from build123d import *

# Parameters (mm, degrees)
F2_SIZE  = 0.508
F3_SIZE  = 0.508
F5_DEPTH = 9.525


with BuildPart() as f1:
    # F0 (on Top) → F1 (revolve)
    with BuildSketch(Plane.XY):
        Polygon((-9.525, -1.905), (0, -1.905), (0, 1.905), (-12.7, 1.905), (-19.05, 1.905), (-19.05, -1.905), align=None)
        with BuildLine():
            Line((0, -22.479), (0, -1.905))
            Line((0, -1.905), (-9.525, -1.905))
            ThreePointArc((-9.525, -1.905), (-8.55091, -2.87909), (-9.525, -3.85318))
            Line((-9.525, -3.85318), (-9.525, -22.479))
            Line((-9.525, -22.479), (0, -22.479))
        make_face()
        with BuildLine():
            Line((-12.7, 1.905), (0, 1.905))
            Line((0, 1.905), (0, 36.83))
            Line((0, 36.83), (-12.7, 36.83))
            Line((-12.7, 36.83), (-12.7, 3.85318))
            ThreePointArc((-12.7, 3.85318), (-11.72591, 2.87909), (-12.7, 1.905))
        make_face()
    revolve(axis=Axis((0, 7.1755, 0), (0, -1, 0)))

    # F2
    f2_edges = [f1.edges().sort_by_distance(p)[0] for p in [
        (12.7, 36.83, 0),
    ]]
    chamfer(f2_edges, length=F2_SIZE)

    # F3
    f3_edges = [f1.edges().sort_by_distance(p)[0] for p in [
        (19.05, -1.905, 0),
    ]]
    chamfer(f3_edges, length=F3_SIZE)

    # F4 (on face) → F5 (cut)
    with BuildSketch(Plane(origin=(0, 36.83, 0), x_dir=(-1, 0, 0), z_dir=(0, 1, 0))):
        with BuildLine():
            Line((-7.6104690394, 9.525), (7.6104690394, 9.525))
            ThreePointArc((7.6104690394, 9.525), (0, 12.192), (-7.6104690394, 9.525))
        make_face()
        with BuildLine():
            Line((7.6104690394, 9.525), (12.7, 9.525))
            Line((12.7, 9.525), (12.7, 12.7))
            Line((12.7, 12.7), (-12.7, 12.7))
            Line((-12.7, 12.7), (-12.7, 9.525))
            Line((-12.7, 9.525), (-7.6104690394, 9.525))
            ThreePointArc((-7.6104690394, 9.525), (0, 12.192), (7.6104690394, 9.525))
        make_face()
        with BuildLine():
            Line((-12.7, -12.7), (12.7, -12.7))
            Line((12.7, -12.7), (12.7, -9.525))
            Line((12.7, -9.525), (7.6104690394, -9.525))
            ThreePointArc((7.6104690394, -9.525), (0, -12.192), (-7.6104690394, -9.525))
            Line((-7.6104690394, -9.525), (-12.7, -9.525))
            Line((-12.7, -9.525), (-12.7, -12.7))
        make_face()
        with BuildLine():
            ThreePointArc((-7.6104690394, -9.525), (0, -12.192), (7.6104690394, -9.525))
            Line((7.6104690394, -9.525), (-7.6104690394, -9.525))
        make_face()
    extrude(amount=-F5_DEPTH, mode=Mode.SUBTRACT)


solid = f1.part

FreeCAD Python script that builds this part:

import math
import FreeCAD as App
import Part
import Sketcher
Q = App.Units.Quantity


def edges_at(feature, points):
    """Names of the edges that pass closest to the given points."""
    edges = feature.Shape.Edges
    near = lambda p: min(range(len(edges)), key=lambda i: edges[i].distToShape(Part.Vertex(*p))[0])
    return sorted({f"Edge{near(p) + 1}" for p in points})


def add_polygon(sketch, points):
    """Adds a closed chain of lines whose ends are joined by coincident constraints."""
    first, n = sketch.GeometryCount, len(points)
    for a, b in zip(points, points[1:] + points[:1]):
        sketch.addGeometry(Part.LineSegment(App.Vector(*a, 0), App.Vector(*b, 0)), False)
    for i in range(n):
        sketch.addConstraint(Sketcher.Constraint("Coincident", first + i, 2, first + (i + 1) % n, 1))

doc = App.newDocument("Part")
body = doc.addObject("PartDesign::Body", "Body")

sketch1 = body.newObject("Sketcher::SketchObject", "Sketch")
sketch1.AttachmentSupport = (doc.getObject("XY_Plane"), [""])
sketch1.MapMode = "FlatFace"
sketch1.addGeometry([
    Part.LineSegment(App.Vector(-12.7, 1.9, 0), App.Vector(-19.1, 1.9, 0)),
    Part.LineSegment(App.Vector(-19.1, 1.9, 0), App.Vector(-19.1, -1.9, 0)),
    Part.LineSegment(App.Vector(-19.1, -1.9, 0), App.Vector(-9.5, -1.9, 0)),
    Part.ArcOfCircle(Part.Circle(App.Vector(-9.5, -2.9, 0), App.Vector(0, 0, 1), 1), math.radians(-90), math.radians(90)),
    Part.LineSegment(App.Vector(-9.5, -3.9, 0), App.Vector(-9.5, -22.5, 0)),
    Part.LineSegment(App.Vector(-9.5, -22.5, 0), App.Vector(0, -22.5, 0)),
    Part.LineSegment(App.Vector(0, -22.5, 0), App.Vector(0, 36.8, 0)),
    Part.LineSegment(App.Vector(0, 36.8, 0), App.Vector(-12.7, 36.8, 0)),
    Part.LineSegment(App.Vector(-12.7, 36.8, 0), App.Vector(-12.7, 3.9, 0)),
    Part.ArcOfCircle(Part.Circle(App.Vector(-12.7, 2.9, 0), App.Vector(0, 0, 1), 1), math.radians(-90), math.radians(90)),
], False)
sketch1.addConstraint([
    Sketcher.Constraint("Coincident", 0, 2, 1, 1),
    Sketcher.Constraint("Coincident", 1, 2, 2, 1),
    Sketcher.Constraint("Tangent", 2, 2, 3, 2),
    Sketcher.Constraint("Coincident", 3, 1, 4, 1),
    Sketcher.Constraint("Coincident", 4, 2, 5, 1),
    Sketcher.Constraint("Coincident", 5, 2, 6, 1),
    Sketcher.Constraint("Coincident", 6, 2, 7, 1),
    Sketcher.Constraint("Coincident", 7, 2, 8, 1),
    Sketcher.Constraint("Coincident", 8, 2, 9, 2),
    Sketcher.Constraint("Tangent", 9, 1, 0, 1),
    Sketcher.Constraint("Horizontal", 0),
    Sketcher.Constraint("Vertical", 1),
    Sketcher.Constraint("Horizontal", 2),
    Sketcher.Constraint("Vertical", 4),
    Sketcher.Constraint("Horizontal", 5),
    Sketcher.Constraint("Vertical", 6),
    Sketcher.Constraint("Horizontal", 7),
    Sketcher.Constraint("Vertical", 8),
    Sketcher.Constraint("Equal", 3, 9),
    Sketcher.Constraint("PointOnObject", 5, 2, -2),
    Sketcher.Constraint("Vertical", 2, 2, 3, 1),
    Sketcher.Constraint("Vertical", 9, 3, 7, 2),
    Sketcher.Constraint("Equal", 2, 5),
    Sketcher.Constraint("DistanceX", 7, 2, 7, 1, Q("0.5 in")),
    Sketcher.Constraint("DistanceX", 0, 2, 0, 1, Q("0.25 in")),
    Sketcher.Constraint("DistanceY", 1, 2, 1, 1, Q("0.15 in")),
    Sketcher.Constraint("DistanceY", 6, 1, 6, 2, Q("2.335 in")),
    Sketcher.Constraint("DistanceY", -1, 1, 6, 2, Q("1.45 in")),
    Sketcher.Constraint("DistanceY", 4, 2, 2, 2, Q("0.81 in")),
    Sketcher.Constraint("DistanceY", 4, 2, 4, 1, Q("0.7333 in")),
])
revolution = body.newObject("PartDesign::Revolution", "Revolution")
revolution.Profile = sketch1
revolution.ReferenceAxis = (sketch1, ["V_Axis"])
revolution.Angle = 360
doc.recompute()

chamfer = body.newObject("PartDesign::Chamfer", "Chamfer")
chamfer.Base = (revolution, edges_at(revolution, [(12.7, 36.83, 0)]))
chamfer.Size = Q("0.02 in")
doc.recompute()

chamfer2 = body.newObject("PartDesign::Chamfer", "Chamfer001")
chamfer2.Base = (chamfer, edges_at(chamfer, [(19.05, -1.905, 0)]))
chamfer2.Size = Q("0.02 in")

sketch2 = body.newObject("Sketcher::SketchObject", "Sketch001")
sketch2.AttachmentSupport = (doc.getObject("XZ_Plane"), [""])
sketch2.MapMode = "FlatFace"
sketch2.AttachmentOffset = App.Placement(App.Vector(0, 0, -1.45 * 25.4), App.Rotation())
add_polygon(sketch2, [(-12.7, 9.5), (-12.7, 12.7), (12.7, 12.7), (12.7, 9.5)])
add_polygon(sketch2, [(12.7, -12.7), (-12.7, -12.7), (-12.7, -9.5), (12.7, -9.5)])
sketch2.addConstraint([
    Sketcher.Constraint("Vertical", 0),
    Sketcher.Constraint("Horizontal", 1),
    Sketcher.Constraint("Vertical", 2),
    Sketcher.Constraint("Horizontal", 3),
    Sketcher.Constraint("Horizontal", 4),
    Sketcher.Constraint("Vertical", 5),
    Sketcher.Constraint("Horizontal", 6),
    Sketcher.Constraint("Vertical", 7),
    Sketcher.Constraint("Symmetric", 1, 2, 4, 2, -1, 1),
    Sketcher.Constraint("Symmetric", 3, 2, 6, 2, -1, 1),
    Sketcher.Constraint("Vertical", 3, 2, 4, 2),
    Sketcher.Constraint("DistanceX", 1, 1, 1, 2, Q("1 in")),
    Sketcher.Constraint("DistanceY", 4, 2, 0, 2, Q("1 in")),
    Sketcher.Constraint("DistanceY", 0, 1, 0, 2, Q("0.125 in")),
])
pocket1 = body.newObject("PartDesign::Pocket", "Pocket")
pocket1.Profile = sketch2
pocket1.Length = Q("0.375 in")
pocket1.Reversed = True

doc.recompute()
